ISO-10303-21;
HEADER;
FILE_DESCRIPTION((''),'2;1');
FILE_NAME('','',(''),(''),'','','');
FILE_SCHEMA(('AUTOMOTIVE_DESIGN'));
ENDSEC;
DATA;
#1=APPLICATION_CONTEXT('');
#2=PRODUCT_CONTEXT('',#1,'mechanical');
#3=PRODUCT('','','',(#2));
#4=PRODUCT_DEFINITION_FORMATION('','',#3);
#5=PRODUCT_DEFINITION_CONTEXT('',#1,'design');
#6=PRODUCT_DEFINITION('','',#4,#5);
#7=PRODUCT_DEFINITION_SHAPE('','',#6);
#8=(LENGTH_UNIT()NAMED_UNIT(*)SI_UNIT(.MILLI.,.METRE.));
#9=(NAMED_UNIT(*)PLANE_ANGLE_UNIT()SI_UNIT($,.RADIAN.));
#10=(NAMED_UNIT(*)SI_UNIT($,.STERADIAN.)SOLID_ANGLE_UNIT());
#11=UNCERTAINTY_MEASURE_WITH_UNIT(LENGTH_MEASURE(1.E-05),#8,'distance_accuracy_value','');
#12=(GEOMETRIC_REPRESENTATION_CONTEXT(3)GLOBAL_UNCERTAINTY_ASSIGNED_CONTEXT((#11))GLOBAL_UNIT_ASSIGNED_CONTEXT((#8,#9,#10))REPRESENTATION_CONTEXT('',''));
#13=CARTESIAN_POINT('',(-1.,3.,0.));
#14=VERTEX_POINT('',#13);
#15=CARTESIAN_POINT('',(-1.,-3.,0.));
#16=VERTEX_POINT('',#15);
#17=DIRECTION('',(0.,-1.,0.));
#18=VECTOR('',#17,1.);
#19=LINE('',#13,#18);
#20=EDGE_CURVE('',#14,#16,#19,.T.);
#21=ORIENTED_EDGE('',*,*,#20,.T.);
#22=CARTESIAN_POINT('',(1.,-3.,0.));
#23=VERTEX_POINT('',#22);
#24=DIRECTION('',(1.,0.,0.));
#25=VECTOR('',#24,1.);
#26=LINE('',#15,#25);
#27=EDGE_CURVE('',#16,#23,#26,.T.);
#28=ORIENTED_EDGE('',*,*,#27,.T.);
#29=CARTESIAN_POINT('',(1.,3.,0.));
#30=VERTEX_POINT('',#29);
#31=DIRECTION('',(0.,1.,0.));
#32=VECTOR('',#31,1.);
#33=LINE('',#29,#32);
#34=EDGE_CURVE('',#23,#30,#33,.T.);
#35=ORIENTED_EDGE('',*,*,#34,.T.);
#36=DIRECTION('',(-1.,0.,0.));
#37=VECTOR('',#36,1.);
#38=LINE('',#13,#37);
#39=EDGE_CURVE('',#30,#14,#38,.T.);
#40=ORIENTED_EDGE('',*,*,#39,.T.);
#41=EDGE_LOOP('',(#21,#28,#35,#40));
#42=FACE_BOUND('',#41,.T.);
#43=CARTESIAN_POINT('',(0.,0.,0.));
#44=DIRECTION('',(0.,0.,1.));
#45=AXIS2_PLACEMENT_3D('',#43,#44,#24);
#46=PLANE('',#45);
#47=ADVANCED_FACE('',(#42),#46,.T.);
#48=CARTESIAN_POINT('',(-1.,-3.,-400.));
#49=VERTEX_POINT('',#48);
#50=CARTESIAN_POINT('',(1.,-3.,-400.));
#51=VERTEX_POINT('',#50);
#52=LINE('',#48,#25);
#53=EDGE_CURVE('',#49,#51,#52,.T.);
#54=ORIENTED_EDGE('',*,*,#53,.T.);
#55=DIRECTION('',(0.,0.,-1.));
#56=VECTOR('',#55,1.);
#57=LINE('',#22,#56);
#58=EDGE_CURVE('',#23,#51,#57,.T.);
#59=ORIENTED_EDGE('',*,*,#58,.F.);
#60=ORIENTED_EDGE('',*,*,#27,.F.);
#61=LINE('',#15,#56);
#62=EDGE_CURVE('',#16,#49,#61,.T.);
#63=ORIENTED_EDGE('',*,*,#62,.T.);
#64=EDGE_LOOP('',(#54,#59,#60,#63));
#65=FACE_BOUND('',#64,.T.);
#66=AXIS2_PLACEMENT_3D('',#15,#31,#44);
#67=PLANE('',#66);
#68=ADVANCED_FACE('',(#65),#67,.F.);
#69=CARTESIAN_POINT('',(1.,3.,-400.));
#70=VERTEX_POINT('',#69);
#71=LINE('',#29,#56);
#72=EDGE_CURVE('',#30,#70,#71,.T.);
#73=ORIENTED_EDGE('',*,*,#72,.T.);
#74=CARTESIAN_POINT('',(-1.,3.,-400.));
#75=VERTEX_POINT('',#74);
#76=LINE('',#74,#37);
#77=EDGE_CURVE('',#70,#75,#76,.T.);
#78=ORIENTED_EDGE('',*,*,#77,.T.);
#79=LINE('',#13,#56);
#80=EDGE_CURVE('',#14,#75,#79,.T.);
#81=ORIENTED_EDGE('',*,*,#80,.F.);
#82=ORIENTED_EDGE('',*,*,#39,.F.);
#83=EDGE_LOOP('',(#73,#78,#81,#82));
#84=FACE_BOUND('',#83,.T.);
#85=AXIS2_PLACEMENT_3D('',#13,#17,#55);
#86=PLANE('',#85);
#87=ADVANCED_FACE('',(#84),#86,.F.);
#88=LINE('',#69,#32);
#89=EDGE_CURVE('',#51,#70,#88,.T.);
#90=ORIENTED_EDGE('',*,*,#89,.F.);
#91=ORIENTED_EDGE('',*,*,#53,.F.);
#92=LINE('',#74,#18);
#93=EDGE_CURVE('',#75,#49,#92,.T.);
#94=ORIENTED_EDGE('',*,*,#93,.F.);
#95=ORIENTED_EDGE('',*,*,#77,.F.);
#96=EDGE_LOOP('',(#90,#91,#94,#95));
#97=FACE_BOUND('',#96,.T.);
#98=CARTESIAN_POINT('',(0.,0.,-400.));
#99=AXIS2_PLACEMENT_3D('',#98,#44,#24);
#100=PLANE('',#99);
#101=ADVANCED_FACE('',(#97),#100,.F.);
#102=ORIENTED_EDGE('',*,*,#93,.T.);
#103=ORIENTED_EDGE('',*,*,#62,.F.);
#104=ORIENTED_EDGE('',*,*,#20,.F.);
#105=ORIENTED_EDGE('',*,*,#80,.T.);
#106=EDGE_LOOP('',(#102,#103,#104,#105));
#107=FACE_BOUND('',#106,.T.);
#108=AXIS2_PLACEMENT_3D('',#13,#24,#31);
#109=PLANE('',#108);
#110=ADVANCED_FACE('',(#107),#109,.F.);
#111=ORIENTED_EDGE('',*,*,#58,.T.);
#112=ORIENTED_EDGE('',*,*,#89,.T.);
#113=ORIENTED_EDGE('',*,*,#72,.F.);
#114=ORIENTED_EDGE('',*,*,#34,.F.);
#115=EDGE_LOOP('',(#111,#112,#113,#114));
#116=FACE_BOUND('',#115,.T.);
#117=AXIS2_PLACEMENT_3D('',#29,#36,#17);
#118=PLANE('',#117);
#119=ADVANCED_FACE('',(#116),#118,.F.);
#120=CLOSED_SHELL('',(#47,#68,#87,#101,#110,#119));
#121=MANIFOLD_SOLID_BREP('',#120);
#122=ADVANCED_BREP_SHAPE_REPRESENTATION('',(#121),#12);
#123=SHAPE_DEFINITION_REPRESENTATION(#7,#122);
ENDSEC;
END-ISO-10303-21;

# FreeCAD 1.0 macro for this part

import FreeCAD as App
import Part
import Sketcher

V = App.Vector


def add_polygon(sketch, points):
    """Adds a closed chain of lines whose ends are joined by coincident constraints."""
    first, n = sketch.GeometryCount, len(points)
    for a, b in zip(points, points[1:] + points[:1]):
        sketch.addGeometry(Part.LineSegment(App.Vector(*a, 0), App.Vector(*b, 0)), False)
    for i in range(n):
        sketch.addConstraint(Sketcher.Constraint("Coincident", first + i, 2, first + (i + 1) % n, 1))

doc = App.newDocument("Part")
body = doc.addObject("PartDesign::Body", "Body")

# Sketch on XY plane
sketch1 = body.newObject("Sketcher::SketchObject", "Sketch")
sketch1.AttachmentSupport = (doc.getObject("XY_Plane"), [""])
sketch1.MapMode = "FlatFace"
add_polygon(sketch1, [(-1, 3), (-1, -3), (1, -3), (1, 3)])  # lines 0-3
sketch1.addConstraint([
    Sketcher.Constraint("Vertical", 0),
    Sketcher.Constraint("Horizontal", 1),
    Sketcher.Constraint("Vertical", 2),
    Sketcher.Constraint("Horizontal", 3),
    Sketcher.Constraint("Symmetric", 0, 2, 2, 2, -1, 1),
    Sketcher.Constraint("DistanceX", 1, 1, 1, 2, 2.0),
    Sketcher.Constraint("DistanceY", 0, 2, 0, 1, 6.0),
])

# Sketch on XZ plane
sketch2 = body.newObject("Sketcher::SketchObject", "Sketch001")
sketch2.AttachmentSupport = (doc.getObject("XZ_Plane"), [""])
sketch2.MapMode = "FlatFace"
sketch2.addGeometry(Part.LineSegment(V(0, 0, 0), V(0, -400, 0)), False)
sketch2.addConstraint([
    Sketcher.Constraint("Vertical", 0),
    Sketcher.Constraint("Coincident", 0, 1, -1, 1),
    Sketcher.Constraint("DistanceY", 0, 2, 0, 1, 400.0),
])
doc.recompute()

additivepipe = body.newObject("PartDesign::AdditivePipe", "AdditivePipe")
additivepipe.Profile = sketch1
additivepipe.Spine = (sketch2, ["Edge1"])

doc.recompute()
